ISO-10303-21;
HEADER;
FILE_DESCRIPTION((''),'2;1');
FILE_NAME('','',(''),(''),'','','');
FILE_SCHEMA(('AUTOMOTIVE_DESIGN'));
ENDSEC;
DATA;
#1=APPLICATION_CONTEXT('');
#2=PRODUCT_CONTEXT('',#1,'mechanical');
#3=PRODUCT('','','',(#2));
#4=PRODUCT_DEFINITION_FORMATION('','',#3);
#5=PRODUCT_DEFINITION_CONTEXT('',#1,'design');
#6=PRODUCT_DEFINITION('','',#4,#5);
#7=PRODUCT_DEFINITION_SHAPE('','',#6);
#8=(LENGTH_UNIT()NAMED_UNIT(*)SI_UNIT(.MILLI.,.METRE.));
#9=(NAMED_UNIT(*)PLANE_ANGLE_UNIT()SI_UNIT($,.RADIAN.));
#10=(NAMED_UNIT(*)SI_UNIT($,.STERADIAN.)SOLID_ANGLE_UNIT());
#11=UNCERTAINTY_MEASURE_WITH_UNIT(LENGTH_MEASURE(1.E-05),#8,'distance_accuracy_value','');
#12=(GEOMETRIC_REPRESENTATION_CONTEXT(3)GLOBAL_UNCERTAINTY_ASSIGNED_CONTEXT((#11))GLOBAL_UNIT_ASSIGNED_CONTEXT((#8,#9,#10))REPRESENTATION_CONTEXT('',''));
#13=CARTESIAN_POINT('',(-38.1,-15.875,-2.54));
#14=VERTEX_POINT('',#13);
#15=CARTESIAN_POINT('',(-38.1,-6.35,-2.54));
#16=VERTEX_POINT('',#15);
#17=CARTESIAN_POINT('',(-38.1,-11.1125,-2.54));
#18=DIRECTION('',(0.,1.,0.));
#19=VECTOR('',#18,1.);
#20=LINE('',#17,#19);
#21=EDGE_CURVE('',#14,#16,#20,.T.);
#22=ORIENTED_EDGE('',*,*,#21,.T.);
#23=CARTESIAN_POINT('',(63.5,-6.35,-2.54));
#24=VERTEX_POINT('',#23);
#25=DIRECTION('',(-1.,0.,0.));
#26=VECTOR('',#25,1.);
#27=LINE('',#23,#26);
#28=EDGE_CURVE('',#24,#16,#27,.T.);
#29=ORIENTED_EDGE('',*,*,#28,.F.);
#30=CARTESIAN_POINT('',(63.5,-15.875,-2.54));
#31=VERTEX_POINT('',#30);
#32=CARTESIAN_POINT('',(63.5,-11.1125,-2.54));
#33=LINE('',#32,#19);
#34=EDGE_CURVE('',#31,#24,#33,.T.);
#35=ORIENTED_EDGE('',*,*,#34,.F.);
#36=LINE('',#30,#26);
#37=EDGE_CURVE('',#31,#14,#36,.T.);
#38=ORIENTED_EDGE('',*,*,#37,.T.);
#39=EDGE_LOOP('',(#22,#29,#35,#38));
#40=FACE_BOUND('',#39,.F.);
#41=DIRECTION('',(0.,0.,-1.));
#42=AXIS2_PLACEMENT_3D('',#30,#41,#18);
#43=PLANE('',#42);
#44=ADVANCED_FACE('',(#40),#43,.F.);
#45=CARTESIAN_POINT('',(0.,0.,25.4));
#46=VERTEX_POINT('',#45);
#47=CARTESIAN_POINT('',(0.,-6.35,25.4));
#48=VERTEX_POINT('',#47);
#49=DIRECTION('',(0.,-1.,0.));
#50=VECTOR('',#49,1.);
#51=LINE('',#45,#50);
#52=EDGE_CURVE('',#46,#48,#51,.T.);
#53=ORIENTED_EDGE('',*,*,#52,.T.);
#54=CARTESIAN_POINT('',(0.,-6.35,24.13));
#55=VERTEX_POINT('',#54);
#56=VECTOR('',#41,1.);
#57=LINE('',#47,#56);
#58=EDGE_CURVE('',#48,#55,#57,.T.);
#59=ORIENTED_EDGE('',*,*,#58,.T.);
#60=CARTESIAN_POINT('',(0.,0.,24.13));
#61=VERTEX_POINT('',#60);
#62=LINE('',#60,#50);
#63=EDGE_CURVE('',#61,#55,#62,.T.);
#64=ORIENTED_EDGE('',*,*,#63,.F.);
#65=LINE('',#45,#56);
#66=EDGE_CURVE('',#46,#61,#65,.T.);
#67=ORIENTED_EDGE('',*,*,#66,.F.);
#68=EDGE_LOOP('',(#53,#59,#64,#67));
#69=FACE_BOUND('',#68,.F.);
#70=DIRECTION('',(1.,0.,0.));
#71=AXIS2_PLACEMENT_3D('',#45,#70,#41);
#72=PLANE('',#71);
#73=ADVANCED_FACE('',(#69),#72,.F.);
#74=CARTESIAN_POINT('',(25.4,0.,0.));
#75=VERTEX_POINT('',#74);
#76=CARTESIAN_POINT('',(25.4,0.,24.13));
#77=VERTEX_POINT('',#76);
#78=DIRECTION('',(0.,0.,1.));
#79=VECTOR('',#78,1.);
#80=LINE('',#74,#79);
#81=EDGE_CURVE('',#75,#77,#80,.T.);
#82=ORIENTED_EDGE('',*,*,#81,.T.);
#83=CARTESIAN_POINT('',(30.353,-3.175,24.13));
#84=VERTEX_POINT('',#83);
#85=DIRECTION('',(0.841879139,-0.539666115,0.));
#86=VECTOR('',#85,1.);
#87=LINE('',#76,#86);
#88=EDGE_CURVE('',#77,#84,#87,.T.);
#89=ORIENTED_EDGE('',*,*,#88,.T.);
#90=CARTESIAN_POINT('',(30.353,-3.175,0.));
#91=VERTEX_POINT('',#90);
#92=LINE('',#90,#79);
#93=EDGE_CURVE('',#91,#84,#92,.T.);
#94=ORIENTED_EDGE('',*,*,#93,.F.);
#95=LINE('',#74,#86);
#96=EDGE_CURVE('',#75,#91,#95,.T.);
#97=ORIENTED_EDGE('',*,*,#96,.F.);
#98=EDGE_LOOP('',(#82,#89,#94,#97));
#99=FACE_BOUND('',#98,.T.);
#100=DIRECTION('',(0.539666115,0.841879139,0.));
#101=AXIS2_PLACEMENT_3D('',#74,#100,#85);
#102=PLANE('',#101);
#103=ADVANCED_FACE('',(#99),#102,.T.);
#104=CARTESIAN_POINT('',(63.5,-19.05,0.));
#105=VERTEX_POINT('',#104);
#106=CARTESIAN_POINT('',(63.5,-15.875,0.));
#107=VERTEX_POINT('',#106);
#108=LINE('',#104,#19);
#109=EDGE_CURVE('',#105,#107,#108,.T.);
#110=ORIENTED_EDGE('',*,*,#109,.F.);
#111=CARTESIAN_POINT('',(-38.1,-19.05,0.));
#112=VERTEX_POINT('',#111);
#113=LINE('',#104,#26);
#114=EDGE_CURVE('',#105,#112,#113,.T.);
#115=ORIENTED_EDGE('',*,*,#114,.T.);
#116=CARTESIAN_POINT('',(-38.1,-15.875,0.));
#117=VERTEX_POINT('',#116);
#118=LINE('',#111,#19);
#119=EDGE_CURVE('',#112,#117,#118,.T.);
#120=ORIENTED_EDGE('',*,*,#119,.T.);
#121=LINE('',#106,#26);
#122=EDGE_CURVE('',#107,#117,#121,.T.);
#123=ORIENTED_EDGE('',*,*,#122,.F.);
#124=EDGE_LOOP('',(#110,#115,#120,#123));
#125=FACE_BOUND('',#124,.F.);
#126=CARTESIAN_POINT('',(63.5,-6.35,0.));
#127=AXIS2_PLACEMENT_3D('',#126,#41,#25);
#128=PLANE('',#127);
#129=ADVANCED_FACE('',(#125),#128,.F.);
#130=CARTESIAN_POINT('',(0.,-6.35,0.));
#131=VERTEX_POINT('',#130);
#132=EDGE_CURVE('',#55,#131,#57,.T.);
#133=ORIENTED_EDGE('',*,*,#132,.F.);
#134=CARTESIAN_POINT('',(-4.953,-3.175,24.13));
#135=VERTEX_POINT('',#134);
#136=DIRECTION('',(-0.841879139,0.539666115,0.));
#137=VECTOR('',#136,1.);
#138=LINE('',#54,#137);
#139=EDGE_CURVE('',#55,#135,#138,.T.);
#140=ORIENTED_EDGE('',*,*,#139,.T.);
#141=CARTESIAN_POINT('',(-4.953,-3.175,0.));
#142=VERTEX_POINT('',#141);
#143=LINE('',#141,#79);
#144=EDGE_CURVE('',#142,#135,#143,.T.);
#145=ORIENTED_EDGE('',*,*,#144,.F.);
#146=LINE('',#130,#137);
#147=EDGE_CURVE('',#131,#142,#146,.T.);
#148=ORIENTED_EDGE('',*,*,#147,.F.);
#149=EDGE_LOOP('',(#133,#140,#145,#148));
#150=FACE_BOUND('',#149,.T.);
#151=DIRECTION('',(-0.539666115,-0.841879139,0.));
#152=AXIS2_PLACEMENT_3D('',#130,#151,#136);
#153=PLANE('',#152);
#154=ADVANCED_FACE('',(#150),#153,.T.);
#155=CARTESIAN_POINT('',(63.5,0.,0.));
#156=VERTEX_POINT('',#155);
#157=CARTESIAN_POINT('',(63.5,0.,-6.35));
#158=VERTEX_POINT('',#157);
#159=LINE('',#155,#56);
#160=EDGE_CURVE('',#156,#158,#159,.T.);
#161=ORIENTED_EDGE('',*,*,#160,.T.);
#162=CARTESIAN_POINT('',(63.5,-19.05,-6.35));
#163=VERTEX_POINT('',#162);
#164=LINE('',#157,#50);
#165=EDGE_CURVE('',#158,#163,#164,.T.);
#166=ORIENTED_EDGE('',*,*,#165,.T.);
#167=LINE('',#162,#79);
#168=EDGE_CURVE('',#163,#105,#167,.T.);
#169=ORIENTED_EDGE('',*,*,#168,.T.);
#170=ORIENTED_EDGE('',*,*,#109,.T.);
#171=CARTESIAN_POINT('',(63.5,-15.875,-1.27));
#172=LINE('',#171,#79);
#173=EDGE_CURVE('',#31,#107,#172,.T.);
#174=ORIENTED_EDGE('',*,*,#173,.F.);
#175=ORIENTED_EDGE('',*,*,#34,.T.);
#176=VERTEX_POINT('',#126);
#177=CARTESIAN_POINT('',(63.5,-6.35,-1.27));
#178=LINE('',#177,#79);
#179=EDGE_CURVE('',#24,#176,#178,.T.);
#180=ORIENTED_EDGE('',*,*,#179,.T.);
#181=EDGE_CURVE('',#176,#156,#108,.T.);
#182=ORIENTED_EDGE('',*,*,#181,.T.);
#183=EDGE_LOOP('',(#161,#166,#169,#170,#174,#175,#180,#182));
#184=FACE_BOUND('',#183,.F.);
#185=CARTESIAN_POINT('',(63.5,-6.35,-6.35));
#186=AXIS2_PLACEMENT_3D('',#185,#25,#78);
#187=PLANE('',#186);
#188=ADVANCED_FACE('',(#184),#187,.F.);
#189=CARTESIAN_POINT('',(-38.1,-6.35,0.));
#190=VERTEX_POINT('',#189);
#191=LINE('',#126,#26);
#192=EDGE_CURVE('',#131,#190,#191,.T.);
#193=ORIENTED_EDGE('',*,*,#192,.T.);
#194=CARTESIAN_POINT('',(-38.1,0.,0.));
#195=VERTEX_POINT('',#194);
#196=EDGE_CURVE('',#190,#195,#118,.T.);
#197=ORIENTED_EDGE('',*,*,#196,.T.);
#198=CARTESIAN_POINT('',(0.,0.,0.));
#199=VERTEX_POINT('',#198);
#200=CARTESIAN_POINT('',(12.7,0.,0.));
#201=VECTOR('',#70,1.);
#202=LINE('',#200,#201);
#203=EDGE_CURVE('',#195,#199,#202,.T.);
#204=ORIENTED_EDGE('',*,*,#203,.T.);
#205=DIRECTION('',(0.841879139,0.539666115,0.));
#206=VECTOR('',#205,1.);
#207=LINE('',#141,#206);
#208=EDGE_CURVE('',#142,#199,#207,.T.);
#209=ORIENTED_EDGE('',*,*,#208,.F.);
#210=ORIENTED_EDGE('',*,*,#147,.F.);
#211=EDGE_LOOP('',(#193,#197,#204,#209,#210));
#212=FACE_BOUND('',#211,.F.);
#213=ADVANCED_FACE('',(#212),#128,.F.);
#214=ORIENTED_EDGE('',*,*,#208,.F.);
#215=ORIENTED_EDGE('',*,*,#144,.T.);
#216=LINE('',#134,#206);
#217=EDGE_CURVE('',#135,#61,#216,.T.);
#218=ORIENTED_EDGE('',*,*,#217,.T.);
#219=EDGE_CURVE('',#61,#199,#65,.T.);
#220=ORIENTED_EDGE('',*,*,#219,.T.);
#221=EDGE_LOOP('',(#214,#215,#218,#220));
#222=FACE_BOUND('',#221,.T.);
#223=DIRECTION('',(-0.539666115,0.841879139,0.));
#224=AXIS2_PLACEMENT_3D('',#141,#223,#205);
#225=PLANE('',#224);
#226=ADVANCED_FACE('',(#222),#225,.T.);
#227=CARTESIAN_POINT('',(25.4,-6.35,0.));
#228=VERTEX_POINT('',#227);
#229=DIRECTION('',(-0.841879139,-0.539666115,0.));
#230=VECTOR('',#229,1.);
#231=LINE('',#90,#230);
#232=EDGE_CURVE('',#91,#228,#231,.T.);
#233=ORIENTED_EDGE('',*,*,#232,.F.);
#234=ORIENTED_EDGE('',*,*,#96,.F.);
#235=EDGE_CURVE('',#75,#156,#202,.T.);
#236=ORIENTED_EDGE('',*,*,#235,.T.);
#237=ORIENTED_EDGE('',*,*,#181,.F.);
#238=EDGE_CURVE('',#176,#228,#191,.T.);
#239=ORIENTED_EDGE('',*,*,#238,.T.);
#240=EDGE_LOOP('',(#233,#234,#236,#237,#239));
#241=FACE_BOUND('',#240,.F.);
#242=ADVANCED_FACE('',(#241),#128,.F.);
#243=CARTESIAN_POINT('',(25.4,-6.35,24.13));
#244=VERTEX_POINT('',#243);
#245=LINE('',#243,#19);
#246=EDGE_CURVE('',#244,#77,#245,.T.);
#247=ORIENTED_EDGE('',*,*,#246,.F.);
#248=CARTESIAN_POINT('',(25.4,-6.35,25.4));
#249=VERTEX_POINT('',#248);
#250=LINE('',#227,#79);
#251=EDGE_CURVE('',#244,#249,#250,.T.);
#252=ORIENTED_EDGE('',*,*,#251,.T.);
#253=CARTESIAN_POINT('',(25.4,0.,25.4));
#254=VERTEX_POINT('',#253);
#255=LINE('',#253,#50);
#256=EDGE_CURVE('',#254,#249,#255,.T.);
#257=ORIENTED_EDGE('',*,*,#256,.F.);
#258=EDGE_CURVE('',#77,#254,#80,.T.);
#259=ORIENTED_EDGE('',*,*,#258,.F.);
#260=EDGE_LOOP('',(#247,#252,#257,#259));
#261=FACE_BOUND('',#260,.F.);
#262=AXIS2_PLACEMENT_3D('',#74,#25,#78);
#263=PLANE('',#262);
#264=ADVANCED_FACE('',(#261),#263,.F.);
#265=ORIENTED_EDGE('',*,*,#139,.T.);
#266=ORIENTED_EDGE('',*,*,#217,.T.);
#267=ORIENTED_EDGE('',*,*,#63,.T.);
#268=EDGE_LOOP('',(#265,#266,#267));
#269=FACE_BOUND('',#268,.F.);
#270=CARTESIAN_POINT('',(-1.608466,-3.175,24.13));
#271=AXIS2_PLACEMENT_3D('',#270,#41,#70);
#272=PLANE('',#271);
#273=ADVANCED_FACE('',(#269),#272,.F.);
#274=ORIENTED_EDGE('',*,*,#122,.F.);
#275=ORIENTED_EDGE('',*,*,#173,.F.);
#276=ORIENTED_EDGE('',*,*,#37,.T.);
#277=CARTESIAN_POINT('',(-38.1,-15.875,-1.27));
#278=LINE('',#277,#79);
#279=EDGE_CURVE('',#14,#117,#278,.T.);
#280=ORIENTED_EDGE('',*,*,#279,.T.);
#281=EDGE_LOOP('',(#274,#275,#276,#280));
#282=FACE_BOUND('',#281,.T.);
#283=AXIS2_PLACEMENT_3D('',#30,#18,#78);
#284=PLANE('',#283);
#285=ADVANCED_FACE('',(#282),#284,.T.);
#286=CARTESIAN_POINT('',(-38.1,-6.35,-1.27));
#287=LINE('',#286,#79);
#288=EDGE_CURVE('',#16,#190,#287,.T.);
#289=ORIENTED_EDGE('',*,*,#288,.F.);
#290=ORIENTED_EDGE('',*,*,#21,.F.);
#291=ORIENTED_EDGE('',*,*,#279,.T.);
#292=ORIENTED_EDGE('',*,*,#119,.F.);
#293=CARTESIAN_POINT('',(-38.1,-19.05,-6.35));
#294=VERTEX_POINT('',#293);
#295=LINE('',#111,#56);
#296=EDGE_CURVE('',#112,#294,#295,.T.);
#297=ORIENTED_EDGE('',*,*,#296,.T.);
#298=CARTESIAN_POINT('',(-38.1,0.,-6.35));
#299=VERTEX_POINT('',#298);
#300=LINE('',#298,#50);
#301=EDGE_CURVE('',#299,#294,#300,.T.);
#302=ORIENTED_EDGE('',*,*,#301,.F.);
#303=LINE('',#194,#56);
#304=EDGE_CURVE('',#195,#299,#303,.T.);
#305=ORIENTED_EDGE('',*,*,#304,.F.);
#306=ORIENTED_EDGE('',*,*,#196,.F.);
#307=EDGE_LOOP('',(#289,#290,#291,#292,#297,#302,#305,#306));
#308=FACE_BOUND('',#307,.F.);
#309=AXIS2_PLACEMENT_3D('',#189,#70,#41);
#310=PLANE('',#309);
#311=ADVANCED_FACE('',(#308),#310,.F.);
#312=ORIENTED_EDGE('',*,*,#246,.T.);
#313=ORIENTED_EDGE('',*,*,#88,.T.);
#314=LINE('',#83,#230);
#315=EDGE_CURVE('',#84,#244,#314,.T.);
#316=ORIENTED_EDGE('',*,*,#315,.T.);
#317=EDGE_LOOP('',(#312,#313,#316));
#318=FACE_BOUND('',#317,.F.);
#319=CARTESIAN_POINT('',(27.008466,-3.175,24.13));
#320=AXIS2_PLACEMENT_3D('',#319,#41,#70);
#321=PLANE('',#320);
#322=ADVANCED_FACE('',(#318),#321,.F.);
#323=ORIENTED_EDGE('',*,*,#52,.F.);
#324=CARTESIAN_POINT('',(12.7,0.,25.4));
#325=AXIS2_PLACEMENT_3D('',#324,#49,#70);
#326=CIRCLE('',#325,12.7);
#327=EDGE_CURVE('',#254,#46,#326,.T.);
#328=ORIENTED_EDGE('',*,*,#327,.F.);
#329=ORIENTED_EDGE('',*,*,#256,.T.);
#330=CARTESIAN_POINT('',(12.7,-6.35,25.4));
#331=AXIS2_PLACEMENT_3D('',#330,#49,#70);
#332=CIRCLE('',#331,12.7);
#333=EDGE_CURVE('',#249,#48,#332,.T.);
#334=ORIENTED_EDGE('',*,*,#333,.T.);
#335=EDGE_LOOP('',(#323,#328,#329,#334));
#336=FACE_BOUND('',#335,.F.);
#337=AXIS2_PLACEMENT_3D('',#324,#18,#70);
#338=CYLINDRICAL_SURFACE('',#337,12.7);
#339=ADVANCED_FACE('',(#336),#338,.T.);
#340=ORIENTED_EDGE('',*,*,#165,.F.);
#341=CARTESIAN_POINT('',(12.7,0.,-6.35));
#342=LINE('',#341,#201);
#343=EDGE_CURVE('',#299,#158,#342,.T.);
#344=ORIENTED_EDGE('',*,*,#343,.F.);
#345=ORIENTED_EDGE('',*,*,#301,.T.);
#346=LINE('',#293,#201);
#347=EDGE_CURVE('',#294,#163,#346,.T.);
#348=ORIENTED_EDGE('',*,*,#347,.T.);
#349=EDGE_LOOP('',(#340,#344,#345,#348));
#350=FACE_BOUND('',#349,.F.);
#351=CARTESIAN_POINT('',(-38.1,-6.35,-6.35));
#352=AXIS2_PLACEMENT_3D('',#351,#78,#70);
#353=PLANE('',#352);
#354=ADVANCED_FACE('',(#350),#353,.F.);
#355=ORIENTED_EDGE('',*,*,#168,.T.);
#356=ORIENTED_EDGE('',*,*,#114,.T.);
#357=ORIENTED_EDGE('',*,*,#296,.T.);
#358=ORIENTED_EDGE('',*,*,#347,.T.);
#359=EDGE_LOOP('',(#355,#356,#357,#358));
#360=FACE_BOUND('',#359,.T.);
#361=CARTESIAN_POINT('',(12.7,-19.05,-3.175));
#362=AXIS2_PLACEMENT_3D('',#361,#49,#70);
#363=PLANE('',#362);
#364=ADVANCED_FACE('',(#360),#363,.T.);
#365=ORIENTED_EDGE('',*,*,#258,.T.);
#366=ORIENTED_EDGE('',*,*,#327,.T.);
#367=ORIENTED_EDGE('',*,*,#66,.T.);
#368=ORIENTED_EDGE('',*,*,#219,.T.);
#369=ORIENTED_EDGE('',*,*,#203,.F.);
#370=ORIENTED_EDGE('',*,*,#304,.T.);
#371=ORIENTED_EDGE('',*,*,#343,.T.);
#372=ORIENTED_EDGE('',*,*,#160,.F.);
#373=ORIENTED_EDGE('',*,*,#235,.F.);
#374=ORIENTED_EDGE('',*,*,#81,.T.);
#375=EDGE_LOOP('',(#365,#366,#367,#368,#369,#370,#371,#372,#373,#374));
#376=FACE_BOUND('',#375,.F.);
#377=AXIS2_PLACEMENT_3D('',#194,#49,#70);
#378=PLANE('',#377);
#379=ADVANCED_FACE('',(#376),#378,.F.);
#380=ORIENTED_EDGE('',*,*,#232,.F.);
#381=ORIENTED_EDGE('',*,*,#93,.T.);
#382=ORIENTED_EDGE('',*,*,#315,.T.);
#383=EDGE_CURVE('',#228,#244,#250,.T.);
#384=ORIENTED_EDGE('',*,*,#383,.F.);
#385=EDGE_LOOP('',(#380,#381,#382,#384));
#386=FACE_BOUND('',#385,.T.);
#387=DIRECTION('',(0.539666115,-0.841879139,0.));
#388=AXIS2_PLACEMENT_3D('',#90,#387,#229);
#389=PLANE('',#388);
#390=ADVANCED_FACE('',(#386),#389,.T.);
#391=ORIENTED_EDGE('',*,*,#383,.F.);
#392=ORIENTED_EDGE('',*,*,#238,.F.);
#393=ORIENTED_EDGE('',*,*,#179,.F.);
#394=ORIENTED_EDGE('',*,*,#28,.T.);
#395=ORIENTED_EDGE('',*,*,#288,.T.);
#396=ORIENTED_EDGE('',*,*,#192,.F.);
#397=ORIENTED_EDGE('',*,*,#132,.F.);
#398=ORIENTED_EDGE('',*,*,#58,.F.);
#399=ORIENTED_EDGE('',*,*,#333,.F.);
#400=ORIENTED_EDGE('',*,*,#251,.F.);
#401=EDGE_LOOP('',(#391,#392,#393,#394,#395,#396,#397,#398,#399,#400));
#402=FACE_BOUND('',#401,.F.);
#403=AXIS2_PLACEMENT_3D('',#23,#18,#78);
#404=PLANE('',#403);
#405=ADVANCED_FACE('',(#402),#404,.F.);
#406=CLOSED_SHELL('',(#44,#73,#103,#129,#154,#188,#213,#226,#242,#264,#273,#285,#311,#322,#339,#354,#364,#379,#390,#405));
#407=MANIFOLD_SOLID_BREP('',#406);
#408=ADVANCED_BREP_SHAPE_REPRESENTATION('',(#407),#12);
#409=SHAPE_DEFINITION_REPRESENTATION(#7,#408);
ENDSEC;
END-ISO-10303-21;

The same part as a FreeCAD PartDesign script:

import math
import FreeCAD as App
import Part
import Sketcher
from FreeCAD import Vector
Q = App.Units.Quantity


def add_polygon(sketch, points):
    """Adds a closed chain of lines whose ends are joined by coincident constraints."""
    first, n = sketch.GeometryCount, len(points)
    for a, b in zip(points, points[1:] + points[:1]):
        sketch.addGeometry(Part.LineSegment(App.Vector(*a, 0), App.Vector(*b, 0)), False)
    for i in range(n):
        sketch.addConstraint(Sketcher.Constraint("Coincident", first + i, 2, first + (i + 1) % n, 1))

doc = App.newDocument("Part")
body = doc.addObject("PartDesign::Body", "Body")

sketch1 = doc.addObject("Sketcher::SketchObject", "Sketch")
body.addObject(sketch1)
sketch1.AttachmentSupport = (doc.XZ_Plane, [""])
sketch1.MapMode = "FlatFace"
sketch1.addGeometry(Part.LineSegment(Vector(0, 25, 0), Vector(0, 0, 0)), False)
sketch1.addGeometry(Part.LineSegment(Vector(0, 0, 0), Vector(25, 0, 0)), False)
sketch1.addGeometry(Part.LineSegment(Vector(25, 0, 0), Vector(25, 25, 0)), False)
sketch1.addGeometry(Part.ArcOfCircle(Part.Circle(Vector(13, 25, 0), Vector(0, 0, 1), 13), math.radians(0), math.radians(180)), False)
sketch1.addConstraint(Sketcher.Constraint("Coincident", 0, 2, 1, 1))
sketch1.addConstraint(Sketcher.Constraint("Coincident", 1, 2, 2, 1))
sketch1.addConstraint(Sketcher.Constraint("Tangent", 2, 2, 3, 1))
sketch1.addConstraint(Sketcher.Constraint("Tangent", 3, 2, 0, 1))
sketch1.addConstraint(Sketcher.Constraint("Vertical", 0))
sketch1.addConstraint(Sketcher.Constraint("Horizontal", 1))
sketch1.addConstraint(Sketcher.Constraint("Vertical", 2))
sketch1.addConstraint(Sketcher.Constraint("Coincident", 0, 2, -1, 1))
sketch1.addConstraint(Sketcher.Constraint("Equal", 1, 0))
sketch1.addConstraint(Sketcher.Constraint("Radius", 3, Q("0.5 in")))
pad1 = doc.addObject("PartDesign::Pad", "Pad")
body.addObject(pad1)
pad1.Profile = sketch1
pad1.Length = Q("0.25 in")

sketch2 = doc.addObject("Sketcher::SketchObject", "Sketch001")
body.addObject(sketch2)
sketch2.AttachmentSupport = (doc.XY_Plane, [""])
sketch2.MapMode = "FlatFace"
add_polygon(sketch2, [(-5, -3), (0, 0), (0, -6)])
add_polygon(sketch2, [(30, -3), (25, -6), (25, 0)])
sketch2.addConstraint(Sketcher.Constraint("Vertical", 1))
sketch2.addConstraint(Sketcher.Constraint("Vertical", 4))
sketch2.addConstraint(Sketcher.Constraint("Coincident", 0, 2, -1, 1))
sketch2.addConstraint(Sketcher.Constraint("PointOnObject", 4, 2, -1))
sketch2.addConstraint(Sketcher.Constraint("Parallel", 0, 3))
sketch2.addConstraint(Sketcher.Constraint("Parallel", 2, 5))
sketch2.addConstraint(Sketcher.Constraint("Horizontal", 1, 2, 3, 2))
sketch2.addConstraint(Sketcher.Constraint("Horizontal", 2, 2, 5, 2))
sketch2.addConstraint(Sketcher.Constraint("DistanceX", -1, 1, 3, 2, Q("1 in")))
sketch2.addConstraint(Sketcher.Constraint("DistanceY", 1, 2, 1, 1, Q("0.25 in")))
sketch2.addConstraint(Sketcher.Constraint("DistanceX", 2, 2, 5, 2, Q("1.39 in")))
pad2 = doc.addObject("PartDesign::Pad", "Pad001")
body.addObject(pad2)
pad2.Profile = sketch2
pad2.Length = Q("0.95 in")

sketch3 = doc.addObject("Sketcher::SketchObject", "Sketch002")
body.addObject(sketch3)
sketch3.AttachmentSupport = (doc.XY_Plane, [""])
sketch3.MapMode = "FlatFace"
add_polygon(sketch3, [(-38, -6), (-38, 0), (64, 0), (64, -6)])
sketch3.addConstraint(Sketcher.Constraint("Vertical", 0))
sketch3.addConstraint(Sketcher.Constraint("Horizontal", 1))
sketch3.addConstraint(Sketcher.Constraint("Vertical", 2))
sketch3.addConstraint(Sketcher.Constraint("Horizontal", 3))
sketch3.addConstraint(Sketcher.Constraint("PointOnObject", 0, 2, -1))
sketch3.addConstraint(Sketcher.Constraint("DistanceX", 1, 1, 1, 2, Q("4 in")))
sketch3.addConstraint(Sketcher.Constraint("DistanceY", 0, 1, 0, 2, Q("0.25 in")))
sketch3.addConstraint(Sketcher.Constraint("DistanceX", 0, 2, -1, 1, Q("1.5 in")))
pad3 = doc.addObject("PartDesign::Pad", "Pad002")
body.addObject(pad3)
pad3.Profile = sketch3
pad3.Length = Q("0.25 in")
pad3.Reversed = True

sketch4 = doc.addObject("Sketcher::SketchObject", "Sketch003")
body.addObject(sketch4)
sketch4.AttachmentSupport = (doc.XZ_Plane, [""])
sketch4.MapMode = "FlatFace"
sketch4.AttachmentOffset = App.Placement(Vector(0, 0, 0.25 * 25.4), App.Rotation())
add_polygon(sketch4, [(-38, 0), (-38, -6), (64, -6), (64, 0)])
sketch4.addConstraint(Sketcher.Constraint("Vertical", 0))
sketch4.addConstraint(Sketcher.Constraint("Horizontal", 1))
sketch4.addConstraint(Sketcher.Constraint("Vertical", 2))
sketch4.addConstraint(Sketcher.Constraint("Horizontal", 3))
sketch4.addConstraint(Sketcher.Constraint("PointOnObject", 2, 2, -1))
sketch4.addConstraint(Sketcher.Constraint("DistanceX", 1, 1, 1, 2, Q("4 in")))
sketch4.addConstraint(Sketcher.Constraint("DistanceY", 0, 2, 0, 1, Q("0.25 in")))
sketch4.addConstraint(Sketcher.Constraint("DistanceX", 0, 2, -1, 1, Q("1.5 in")))
pad4 = doc.addObject("PartDesign::Pad", "Pad003")
body.addObject(pad4)
pad4.Profile = sketch4
pad4.Length = Q("0.5 in")

sketch5 = doc.addObject("Sketcher::SketchObject", "Sketch004")
body.addObject(sketch5)
sketch5.AttachmentSupport = (doc.YZ_Plane, [""])
sketch5.MapMode = "FlatFace"
sketch5.AttachmentOffset = App.Placement(Vector(0, 0, 2.5 * 25.4), App.Rotation())
add_polygon(sketch5, [(-15.9, 0), (-15.9, -2.5), (-6.3, -2.5), (-6.3, 0)])
sketch5.addConstraint(Sketcher.Constraint("Vertical", 0))
sketch5.addConstraint(Sketcher.Constraint("Horizontal", 1))
sketch5.addConstraint(Sketcher.Constraint("Vertical", 2))
sketch5.addConstraint(Sketcher.Constraint("Horizontal", 3))
sketch5.addConstraint(Sketcher.Constraint("PointOnObject", 2, 2, -1))
sketch5.addConstraint(Sketcher.Constraint("DistanceY", 0, 2, 0, 1, Q("0.1 in")))
sketch5.addConstraint(Sketcher.Constraint("DistanceX", 1, 1, 1, 2, Q("0.375 in")))
sketch5.addConstraint(Sketcher.Constraint("DistanceX", 1, 2, -1, 1, Q("0.25 in")))
pocket1 = doc.addObject("PartDesign::Pocket", "Pocket")
body.addObject(pocket1)
pocket1.Profile = sketch5
pocket1.Length = 114.282591

doc.recompute()
